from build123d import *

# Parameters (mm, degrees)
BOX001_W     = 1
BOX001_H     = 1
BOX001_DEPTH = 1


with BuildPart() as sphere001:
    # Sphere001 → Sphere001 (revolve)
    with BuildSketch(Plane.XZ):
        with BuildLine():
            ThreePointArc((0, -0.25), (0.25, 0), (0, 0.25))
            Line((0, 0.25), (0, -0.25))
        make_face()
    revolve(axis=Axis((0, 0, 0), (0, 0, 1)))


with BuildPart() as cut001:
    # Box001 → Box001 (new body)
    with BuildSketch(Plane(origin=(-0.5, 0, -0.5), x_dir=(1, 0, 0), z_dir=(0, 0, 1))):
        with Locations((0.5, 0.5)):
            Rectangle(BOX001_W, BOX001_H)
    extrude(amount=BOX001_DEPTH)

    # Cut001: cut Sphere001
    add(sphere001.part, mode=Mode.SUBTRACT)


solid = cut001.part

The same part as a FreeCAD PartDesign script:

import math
import FreeCAD as App
import Part
import Sketcher

V = App.Vector
Q = App.Units.Quantity


def add_polygon(sketch, points):
    """Adds a closed chain of lines whose ends are joined by coincident constraints."""
    first, n = sketch.GeometryCount, len(points)
    for a, b in zip(points, points[1:] + points[:1]):
        sketch.addGeometry(Part.LineSegment(App.Vector(*a, 0), App.Vector(*b, 0)), False)
    for i in range(n):
        sketch.addConstraint(Sketcher.Constraint("Coincident", first + i, 2, first + (i + 1) % n, 1))

doc = App.newDocument("Part")
body = doc.addObject("PartDesign::Body", "Body")

# Sketch on XZ plane
sketch1 = body.newObject("Sketcher::SketchObject", "Sketch")
sketch1.AttachmentSupport = (doc.getObject("XZ_Plane"), [""])
sketch1.MapMode = "FlatFace"
sketch1.addGeometry([
    Part.ArcOfCircle(Part.Circle(V(0, 0, 0), V(0, 0, 1), 0.25), math.radians(-90), math.radians(90)),
    Part.LineSegment(V(0, 0.25, 0), V(0, -0.25, 0)),
], False)
sketch1.addConstraint([
    Sketcher.Constraint("Coincident", 0, 1, 1, 2),
    Sketcher.Constraint("Coincident", 1, 1, 0, 2),
    Sketcher.Constraint("Vertical", 1),
    Sketcher.Constraint("Coincident", 0, 3, -1, 1),
    Sketcher.Constraint("PointOnObject", 0, 1, -2),
    Sketcher.Constraint("Radius", 0, Q("0.25 mm")),
])
revolution = body.newObject("PartDesign::Revolution", "Revolution")
revolution.Profile = sketch1
revolution.ReferenceAxis = (sketch1, ["V_Axis"])
revolution.Angle = 360
body2 = doc.addObject("PartDesign::Body", "Body001")

# Sketch on XY plane
sketch2 = body2.newObject("Sketcher::SketchObject", "Sketch001")
sketch2.AttachmentSupport = (doc.getObject("XY_Plane001"), [""])
sketch2.MapMode = "FlatFace"
sketch2.AttachmentOffset = App.Placement(V(0, 0, -0.5), App.Rotation())
add_polygon(sketch2, [(-0.5, 1), (-0.5, 0), (0.5, 0), (0.5, 1)])  # lines 0-3
sketch2.addConstraint([
    Sketcher.Constraint("Vertical", 0),
    Sketcher.Constraint("Horizontal", 1),
    Sketcher.Constraint("Vertical", 2),
    Sketcher.Constraint("Horizontal", 3),
    Sketcher.Constraint("Symmetric", 0, 2, 1, 2, -1, 1),
    Sketcher.Constraint("Equal", 3, 0),
    Sketcher.Constraint("DistanceX", 1, 1, 1, 2, Q("1 mm")),
])
pad1 = body2.newObject("PartDesign::Pad", "Pad")
pad1.Profile = sketch2
pad1.Length = 1
doc.recompute()

boolean = body2.newObject("PartDesign::Boolean", "Boolean")
boolean.Type = "Cut"
boolean.addObjects([body])

doc.recompute()
